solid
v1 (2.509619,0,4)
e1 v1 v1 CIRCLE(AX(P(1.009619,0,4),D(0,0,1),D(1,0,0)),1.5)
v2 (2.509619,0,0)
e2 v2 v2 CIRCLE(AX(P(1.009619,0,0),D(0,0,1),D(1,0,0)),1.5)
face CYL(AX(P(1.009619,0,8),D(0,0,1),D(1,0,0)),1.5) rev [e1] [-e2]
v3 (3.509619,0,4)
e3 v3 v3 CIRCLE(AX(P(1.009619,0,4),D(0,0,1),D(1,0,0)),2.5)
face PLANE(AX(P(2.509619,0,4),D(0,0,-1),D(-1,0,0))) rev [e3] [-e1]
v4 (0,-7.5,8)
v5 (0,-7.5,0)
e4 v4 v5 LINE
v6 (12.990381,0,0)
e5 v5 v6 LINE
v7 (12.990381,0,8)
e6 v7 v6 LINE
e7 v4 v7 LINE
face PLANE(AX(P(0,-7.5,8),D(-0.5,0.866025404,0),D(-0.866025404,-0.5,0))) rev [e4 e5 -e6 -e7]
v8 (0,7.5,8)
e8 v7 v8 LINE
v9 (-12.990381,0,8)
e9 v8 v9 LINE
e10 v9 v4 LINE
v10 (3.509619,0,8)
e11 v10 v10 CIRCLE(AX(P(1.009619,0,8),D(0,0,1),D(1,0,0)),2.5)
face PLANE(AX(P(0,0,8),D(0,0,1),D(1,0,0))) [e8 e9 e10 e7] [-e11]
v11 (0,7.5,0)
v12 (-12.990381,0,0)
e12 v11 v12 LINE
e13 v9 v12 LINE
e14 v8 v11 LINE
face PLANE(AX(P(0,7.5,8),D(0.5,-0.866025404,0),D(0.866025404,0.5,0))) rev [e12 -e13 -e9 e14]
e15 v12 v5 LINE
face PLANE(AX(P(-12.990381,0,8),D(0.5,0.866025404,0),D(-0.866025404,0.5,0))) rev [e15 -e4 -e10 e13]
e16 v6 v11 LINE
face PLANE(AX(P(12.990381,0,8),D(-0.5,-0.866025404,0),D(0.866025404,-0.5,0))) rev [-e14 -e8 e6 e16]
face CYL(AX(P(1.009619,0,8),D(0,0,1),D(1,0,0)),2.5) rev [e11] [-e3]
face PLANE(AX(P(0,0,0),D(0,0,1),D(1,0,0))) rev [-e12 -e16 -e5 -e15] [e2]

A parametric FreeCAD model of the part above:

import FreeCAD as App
import Part
import Sketcher
Q = App.Units.Quantity

doc = App.newDocument("Part")
body = doc.addObject("PartDesign::Body", "Body")

# Sketch on XY plane
sketch1 = doc.addObject("Sketcher::SketchObject", "Sketch")
body.addObject(sketch1)
sketch1.AttachmentSupport = (doc.XY_Plane, [""])
sketch1.MapMode = "FlatFace"
sketch1.addGeometry(Part.LineSegment(App.Vector(0, 8, 0), App.Vector(-13, 0, 0)), False)
sketch1.addGeometry(Part.LineSegment(App.Vector(-13, 0, 0), App.Vector(0, -8, 0)), False)
sketch1.addGeometry(Part.LineSegment(App.Vector(0, -8, 0), App.Vector(13, 0, 0)), False)
sketch1.addGeometry(Part.LineSegment(App.Vector(13, 0, 0), App.Vector(0, 8, 0)), False)
sketch1.addConstraint(Sketcher.Constraint("Coincident", 0, 2, 1, 1))
sketch1.addConstraint(Sketcher.Constraint("Coincident", 1, 2, 2, 1))
sketch1.addConstraint(Sketcher.Constraint("Coincident", 2, 2, 3, 1))
sketch1.addConstraint(Sketcher.Constraint("Coincident", 3, 2, 0, 1))
sketch1.addConstraint(Sketcher.Constraint("Symmetric", 0, 2, 2, 2, -1, 1))
sketch1.addConstraint(Sketcher.Constraint("Symmetric", 1, 2, 3, 2, -1, 1))
sketch1.addConstraint(Sketcher.Constraint("PointOnObject", 0, 2, -1))
sketch1.addConstraint(Sketcher.Constraint("PointOnObject", 1, 2, -2))
sketch1.addConstraint(Sketcher.Constraint("Angle", 0, Q("-150 deg")))
sketch1.addConstraint(Sketcher.Constraint("Distance", 0, 15.0))
pad1 = doc.addObject("PartDesign::Pad", "Pad")
body.addObject(pad1)
pad1.Profile = sketch1
pad1.Length = 8

# Sketch on XY plane
sketch2 = doc.addObject("Sketcher::SketchObject", "Sketch001")
body.addObject(sketch2)
sketch2.AttachmentSupport = (doc.XY_Plane, [""])
sketch2.MapMode = "FlatFace"
sketch2.AttachmentOffset = App.Placement(App.Vector(0, 0, 8), App.Rotation())
sketch2.addGeometry(Part.Circle(App.Vector(1, 0, 0), App.Vector(0, 0, 1), 1.5), False)
sketch2.addConstraint(Sketcher.Constraint("PointOnObject", 0, 3, -1))
sketch2.addConstraint(Sketcher.Constraint("Diameter", 0, 3.0))
sketch2.addConstraint(Sketcher.Constraint("DistanceX", -1, 1, 0, 3, 1.009619))
doc.recompute()
hole = doc.addObject("PartDesign::Hole", "Hole")
body.addObject(hole)
hole.Profile = sketch2
hole.ThreadType = "None"
hole.Diameter = 3
hole.DepthType = "Dimension"
hole.Depth = 9
hole.DrillPoint = "Flat"
hole.HoleCutType = "Counterbore"
hole.HoleCutDiameter = 5
hole.HoleCutDepth = 4

doc.recompute()
